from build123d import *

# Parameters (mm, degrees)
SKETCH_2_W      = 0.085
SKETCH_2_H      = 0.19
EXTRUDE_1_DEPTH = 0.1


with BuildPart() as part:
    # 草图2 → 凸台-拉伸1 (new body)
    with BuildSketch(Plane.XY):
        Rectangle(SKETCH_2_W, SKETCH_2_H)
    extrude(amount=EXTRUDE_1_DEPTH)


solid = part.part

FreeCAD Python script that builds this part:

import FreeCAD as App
import Part
import Sketcher
from FreeCAD import Vector
Q = App.Units.Quantity


def add_polygon(sketch, points):
    """Adds a closed chain of lines whose ends are joined by coincident constraints."""
    first, n = sketch.GeometryCount, len(points)
    for a, b in zip(points, points[1:] + points[:1]):
        sketch.addGeometry(Part.LineSegment(App.Vector(*a, 0), App.Vector(*b, 0)), False)
    for i in range(n):
        sketch.addConstraint(Sketcher.Constraint("Coincident", first + i, 2, first + (i + 1) % n, 1))

doc = App.newDocument("Part")
params = doc.addObject("Spreadsheet::Sheet", "Params")
for row, (alias, value) in enumerate([
    ("sketch1_height", "0.19 mm"),
    ("pad1_length", "0.1 mm"),
], start=1):
    params.set(f"A{row}", alias)
    params.set(f"B{row}", "=" + value)
    params.setAlias(f"B{row}", alias)

body = doc.addObject("PartDesign::Body", "Body")

# Sketch on XY plane
sketch1 = doc.addObject("Sketcher::SketchObject", "Sketch")
body.addObject(sketch1)
sketch1.AttachmentSupport = (doc.XY_Plane, [""])
sketch1.MapMode = "FlatFace"
add_polygon(sketch1, [(-0.0425, 0.095), (-0.0425, -0.095), (0.0425, -0.095), (0.0425, 0.095)])  # lines 0-3
sketch1.addConstraint([
    Sketcher.Constraint("Vertical", 0),
    Sketcher.Constraint("Horizontal", 1),
    Sketcher.Constraint("Vertical", 2),
    Sketcher.Constraint("Horizontal", 3),
    Sketcher.Constraint("Symmetric", 0, 2, 2, 2, -1, 1),
    Sketcher.Constraint("DistanceY", 0, 2, 0, 1, Q("0.19 mm")),
    Sketcher.Constraint("DistanceX", 1, 1, 1, 2, Q("0.085 mm")),
])
sketch1.setExpression("Constraints[9]", "Params.sketch1_height")
pad1 = doc.addObject("PartDesign::Pad", "Pad")
body.addObject(pad1)
pad1.Profile = sketch1
pad1.setExpression("Length", "Params.pad1_length")

doc.recompute()
